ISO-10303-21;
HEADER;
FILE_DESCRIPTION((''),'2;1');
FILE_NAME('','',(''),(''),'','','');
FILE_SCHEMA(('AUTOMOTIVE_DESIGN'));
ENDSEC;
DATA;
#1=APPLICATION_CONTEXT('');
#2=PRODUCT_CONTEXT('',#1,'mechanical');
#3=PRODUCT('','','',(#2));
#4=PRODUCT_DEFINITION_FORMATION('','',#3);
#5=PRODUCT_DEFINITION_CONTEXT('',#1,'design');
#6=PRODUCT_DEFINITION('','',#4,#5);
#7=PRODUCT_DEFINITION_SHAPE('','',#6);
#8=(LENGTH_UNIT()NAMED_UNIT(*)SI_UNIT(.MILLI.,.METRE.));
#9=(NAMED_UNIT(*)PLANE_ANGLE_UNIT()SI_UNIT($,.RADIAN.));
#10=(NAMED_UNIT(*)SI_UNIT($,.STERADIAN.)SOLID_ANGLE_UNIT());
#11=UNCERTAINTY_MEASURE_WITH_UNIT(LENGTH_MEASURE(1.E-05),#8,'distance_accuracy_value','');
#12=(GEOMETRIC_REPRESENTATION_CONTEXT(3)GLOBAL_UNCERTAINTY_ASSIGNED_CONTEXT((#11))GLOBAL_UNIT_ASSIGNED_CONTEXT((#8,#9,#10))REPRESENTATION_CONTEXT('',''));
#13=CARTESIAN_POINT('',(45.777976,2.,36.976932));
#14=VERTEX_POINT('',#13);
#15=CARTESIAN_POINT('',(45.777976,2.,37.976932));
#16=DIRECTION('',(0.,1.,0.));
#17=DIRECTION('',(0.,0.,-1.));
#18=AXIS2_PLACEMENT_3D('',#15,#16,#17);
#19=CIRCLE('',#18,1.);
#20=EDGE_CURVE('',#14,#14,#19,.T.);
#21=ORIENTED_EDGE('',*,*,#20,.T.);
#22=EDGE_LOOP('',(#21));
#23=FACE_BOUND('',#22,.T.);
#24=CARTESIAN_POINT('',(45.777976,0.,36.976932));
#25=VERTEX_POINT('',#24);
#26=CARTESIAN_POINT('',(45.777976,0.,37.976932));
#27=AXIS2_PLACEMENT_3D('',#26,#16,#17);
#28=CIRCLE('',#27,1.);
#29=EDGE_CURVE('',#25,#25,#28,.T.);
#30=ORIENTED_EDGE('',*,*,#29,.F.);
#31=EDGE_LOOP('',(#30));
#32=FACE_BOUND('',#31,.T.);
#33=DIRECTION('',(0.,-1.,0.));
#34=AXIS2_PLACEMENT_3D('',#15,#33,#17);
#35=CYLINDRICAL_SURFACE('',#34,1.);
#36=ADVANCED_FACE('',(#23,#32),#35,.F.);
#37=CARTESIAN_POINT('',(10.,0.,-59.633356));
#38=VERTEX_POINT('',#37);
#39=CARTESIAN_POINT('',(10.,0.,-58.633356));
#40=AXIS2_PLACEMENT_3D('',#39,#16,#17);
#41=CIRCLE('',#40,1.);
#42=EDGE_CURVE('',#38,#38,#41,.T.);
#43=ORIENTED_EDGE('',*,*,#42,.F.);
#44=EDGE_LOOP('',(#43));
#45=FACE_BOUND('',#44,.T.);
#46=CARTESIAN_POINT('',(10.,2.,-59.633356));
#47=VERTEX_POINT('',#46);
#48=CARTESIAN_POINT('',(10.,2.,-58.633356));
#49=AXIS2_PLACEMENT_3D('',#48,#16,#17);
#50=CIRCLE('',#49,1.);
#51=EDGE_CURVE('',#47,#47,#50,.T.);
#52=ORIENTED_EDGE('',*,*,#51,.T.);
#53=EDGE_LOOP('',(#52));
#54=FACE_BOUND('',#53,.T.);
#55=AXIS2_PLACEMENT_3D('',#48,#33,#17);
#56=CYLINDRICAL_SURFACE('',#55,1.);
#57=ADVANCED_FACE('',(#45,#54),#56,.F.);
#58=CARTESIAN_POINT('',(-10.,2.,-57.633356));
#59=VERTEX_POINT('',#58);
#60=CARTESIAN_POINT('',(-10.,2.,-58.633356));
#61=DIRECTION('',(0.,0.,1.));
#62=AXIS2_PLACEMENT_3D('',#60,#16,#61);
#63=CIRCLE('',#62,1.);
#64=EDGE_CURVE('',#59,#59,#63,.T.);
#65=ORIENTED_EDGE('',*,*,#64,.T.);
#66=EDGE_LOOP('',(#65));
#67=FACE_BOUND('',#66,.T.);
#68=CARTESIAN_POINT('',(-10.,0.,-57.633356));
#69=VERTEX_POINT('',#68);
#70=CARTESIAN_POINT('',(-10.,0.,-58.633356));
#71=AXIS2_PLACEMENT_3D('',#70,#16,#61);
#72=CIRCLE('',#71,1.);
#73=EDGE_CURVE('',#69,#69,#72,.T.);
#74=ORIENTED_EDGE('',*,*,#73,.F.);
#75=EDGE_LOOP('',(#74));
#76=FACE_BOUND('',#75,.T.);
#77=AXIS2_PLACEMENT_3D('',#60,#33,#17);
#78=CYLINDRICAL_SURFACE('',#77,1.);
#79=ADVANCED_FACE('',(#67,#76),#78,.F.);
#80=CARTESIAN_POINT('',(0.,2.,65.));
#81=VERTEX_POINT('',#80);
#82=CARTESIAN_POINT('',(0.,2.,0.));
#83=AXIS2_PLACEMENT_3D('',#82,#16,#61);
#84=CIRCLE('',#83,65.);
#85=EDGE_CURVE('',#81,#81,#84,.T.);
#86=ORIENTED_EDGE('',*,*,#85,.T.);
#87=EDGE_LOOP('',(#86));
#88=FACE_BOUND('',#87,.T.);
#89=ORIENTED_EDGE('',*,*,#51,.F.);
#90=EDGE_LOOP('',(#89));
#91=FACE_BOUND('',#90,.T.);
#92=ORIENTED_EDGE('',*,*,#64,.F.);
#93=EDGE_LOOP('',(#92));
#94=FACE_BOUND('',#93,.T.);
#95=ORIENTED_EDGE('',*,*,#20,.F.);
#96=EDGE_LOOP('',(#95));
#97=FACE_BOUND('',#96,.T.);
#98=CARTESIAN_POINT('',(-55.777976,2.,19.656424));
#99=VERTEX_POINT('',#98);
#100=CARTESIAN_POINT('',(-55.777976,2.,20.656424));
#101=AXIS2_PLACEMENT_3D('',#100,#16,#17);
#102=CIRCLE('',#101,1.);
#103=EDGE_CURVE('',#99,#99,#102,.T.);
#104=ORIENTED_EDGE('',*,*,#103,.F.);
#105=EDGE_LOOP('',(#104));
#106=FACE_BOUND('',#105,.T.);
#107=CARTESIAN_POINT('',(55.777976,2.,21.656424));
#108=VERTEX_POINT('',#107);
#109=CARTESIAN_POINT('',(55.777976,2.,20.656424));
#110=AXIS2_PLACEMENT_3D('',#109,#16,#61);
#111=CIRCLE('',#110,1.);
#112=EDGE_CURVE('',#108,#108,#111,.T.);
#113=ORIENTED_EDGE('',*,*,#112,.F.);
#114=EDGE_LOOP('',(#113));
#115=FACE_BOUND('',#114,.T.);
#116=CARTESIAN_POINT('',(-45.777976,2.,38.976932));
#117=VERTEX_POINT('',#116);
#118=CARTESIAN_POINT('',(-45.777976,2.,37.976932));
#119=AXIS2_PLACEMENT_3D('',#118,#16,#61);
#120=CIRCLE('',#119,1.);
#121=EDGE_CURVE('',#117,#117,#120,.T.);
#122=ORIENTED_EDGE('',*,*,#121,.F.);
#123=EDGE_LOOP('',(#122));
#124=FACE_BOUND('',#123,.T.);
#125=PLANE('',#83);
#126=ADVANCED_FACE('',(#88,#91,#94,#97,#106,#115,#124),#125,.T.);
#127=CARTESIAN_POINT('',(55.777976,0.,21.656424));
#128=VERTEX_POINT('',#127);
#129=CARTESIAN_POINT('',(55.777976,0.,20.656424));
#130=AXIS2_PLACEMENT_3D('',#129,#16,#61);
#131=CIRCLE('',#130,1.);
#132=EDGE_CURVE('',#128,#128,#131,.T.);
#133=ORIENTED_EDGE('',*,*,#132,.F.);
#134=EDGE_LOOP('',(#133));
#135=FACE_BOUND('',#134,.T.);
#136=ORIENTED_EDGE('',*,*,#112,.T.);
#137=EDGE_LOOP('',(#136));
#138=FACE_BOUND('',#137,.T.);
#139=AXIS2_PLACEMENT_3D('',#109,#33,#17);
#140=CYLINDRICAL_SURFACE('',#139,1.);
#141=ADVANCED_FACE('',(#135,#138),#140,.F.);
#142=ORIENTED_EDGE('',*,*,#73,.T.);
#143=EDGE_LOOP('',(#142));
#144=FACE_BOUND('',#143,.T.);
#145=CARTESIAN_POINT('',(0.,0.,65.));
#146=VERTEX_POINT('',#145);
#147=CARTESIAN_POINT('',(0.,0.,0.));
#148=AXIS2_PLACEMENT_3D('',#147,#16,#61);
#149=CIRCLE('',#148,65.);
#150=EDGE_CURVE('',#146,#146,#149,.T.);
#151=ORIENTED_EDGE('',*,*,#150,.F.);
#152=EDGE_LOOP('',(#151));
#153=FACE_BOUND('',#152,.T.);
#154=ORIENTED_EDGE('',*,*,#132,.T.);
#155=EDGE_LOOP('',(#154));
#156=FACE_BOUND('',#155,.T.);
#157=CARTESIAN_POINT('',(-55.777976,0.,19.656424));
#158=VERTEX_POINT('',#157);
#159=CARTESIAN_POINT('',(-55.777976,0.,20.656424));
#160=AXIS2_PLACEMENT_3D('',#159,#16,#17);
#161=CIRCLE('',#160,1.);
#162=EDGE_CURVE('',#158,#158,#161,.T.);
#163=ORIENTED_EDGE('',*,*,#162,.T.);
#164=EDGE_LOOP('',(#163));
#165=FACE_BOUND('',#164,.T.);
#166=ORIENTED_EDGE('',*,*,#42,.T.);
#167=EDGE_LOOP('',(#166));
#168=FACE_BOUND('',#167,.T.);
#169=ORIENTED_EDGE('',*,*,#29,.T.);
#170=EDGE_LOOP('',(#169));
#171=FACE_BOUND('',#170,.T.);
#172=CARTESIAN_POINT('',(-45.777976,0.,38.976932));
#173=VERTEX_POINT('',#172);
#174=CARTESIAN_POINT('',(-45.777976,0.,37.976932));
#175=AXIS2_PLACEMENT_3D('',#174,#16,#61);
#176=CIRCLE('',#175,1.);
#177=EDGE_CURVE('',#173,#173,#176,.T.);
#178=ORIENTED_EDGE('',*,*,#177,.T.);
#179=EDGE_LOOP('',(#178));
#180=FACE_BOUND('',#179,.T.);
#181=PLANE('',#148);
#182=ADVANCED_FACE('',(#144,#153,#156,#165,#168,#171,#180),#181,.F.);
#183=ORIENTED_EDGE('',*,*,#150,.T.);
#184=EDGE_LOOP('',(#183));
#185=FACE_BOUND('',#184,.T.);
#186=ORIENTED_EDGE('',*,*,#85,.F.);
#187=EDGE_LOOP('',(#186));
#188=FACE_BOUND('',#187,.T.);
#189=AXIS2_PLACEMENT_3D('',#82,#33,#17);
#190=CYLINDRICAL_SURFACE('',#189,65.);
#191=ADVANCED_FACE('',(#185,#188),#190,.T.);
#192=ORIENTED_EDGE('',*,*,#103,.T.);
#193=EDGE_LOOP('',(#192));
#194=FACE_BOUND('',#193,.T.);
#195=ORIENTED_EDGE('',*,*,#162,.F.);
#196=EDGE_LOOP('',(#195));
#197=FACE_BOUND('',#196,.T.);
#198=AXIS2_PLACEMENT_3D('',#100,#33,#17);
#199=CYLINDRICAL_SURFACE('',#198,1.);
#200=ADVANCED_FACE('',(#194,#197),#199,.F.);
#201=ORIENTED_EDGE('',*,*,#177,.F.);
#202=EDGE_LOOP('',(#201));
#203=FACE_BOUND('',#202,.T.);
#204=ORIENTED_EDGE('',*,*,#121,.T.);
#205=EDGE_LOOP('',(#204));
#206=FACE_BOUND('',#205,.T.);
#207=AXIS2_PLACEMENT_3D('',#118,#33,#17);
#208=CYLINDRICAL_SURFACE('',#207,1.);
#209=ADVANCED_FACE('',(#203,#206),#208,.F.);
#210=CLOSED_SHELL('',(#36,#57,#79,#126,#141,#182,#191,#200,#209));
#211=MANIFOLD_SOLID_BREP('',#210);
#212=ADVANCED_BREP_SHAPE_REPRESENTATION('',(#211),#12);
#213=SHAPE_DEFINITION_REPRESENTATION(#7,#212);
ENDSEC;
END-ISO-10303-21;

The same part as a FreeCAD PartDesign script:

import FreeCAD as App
import Part
import Sketcher

V = App.Vector
Q = App.Units.Quantity

doc = App.newDocument("Part")
params = doc.addObject("Spreadsheet::Sheet", "Params")
for row, (alias, value) in enumerate([
    ("sketch1_diameter", "130 mm"),
    ("sketch1_diameter2", "2 mm"),
    ("pad1_length", "2 mm"),
], start=1):
    params.set(f"A{row}", alias)
    params.set(f"B{row}", "=" + value)
    params.setAlias(f"B{row}", alias)

body = doc.addObject("PartDesign::Body", "Body")

sketch1 = body.newObject("Sketcher::SketchObject", "Sketch")
sketch1.AttachmentSupport = (doc.getObject("XZ_Plane"), [""])
sketch1.MapMode = "FlatFace"
sketch1.addGeometry(Part.Circle(V(0, 0, 0), V(0, 0, 1), 65), False)
sketch1.addGeometry(Part.Circle(V(-45.777976, 37.976932, 0), V(0, 0, 1), 1), False)
sketch1.addGeometry(Part.Circle(V(-55.777976, 20.656424, 0), V(0, 0, 1), 1), False)
sketch1.addGeometry(Part.Circle(V(45.777976, 37.976932, 0), V(0, 0, 1), 1), False)
sketch1.addGeometry(Part.Circle(V(55.777976, 20.656424, 0), V(0, 0, 1), 1), False)
sketch1.addGeometry(Part.Circle(V(-10, -58.633356, 0), V(0, 0, 1), 1), False)
sketch1.addGeometry(Part.Circle(V(10, -58.633356, 0), V(0, 0, 1), 1), False)
sketch1.addConstraint(Sketcher.Constraint("Coincident", 0, 3, -1, 1))
sketch1.addConstraint(Sketcher.Constraint("Equal", 1, 2))
sketch1.addConstraint(Sketcher.Constraint("Equal", 2, 3))
sketch1.addConstraint(Sketcher.Constraint("Equal", 3, 4))
sketch1.addConstraint(Sketcher.Constraint("Equal", 4, 5))
sketch1.addConstraint(Sketcher.Constraint("Equal", 5, 6))
sketch1.addConstraint(Sketcher.Constraint("Symmetric", 1, 3, 3, 3, -2))
sketch1.addConstraint(Sketcher.Constraint("Symmetric", 2, 3, 4, 3, -2))
sketch1.addConstraint(Sketcher.Constraint("Symmetric", 5, 3, 6, 3, -2))
sketch1.addConstraint(Sketcher.Constraint("Diameter", 0, Q("130 mm")))
sketch1.addConstraint(Sketcher.Constraint("Diameter", 1, Q("2 mm")))
sketch1.addConstraint(Sketcher.Constraint("DistanceX", 5, 3, -1, 1, Q("10 mm")))
sketch1.addConstraint(Sketcher.Constraint("DistanceX", 2, 3, 1, 3, Q("10 mm")))
sketch1.addConstraint(Sketcher.Constraint("DistanceY", -1, 1, 1, 3, Q("37.976932 mm")))
sketch1.addConstraint(Sketcher.Constraint("DistanceY", 2, 3, 1, 3, Q("17.320508 mm")))
sketch1.addConstraint(Sketcher.Constraint("DistanceX", 1, 3, 3, 3, Q("91.555951 mm")))
sketch1.addConstraint(Sketcher.Constraint("DistanceY", 5, 3, 2, 3, Q("79.28978 mm")))
sketch1.setExpression("Constraints[9]", "Params.sketch1_diameter")
sketch1.setExpression("Constraints[10]", "Params.sketch1_diameter2")
pad1 = body.newObject("PartDesign::Pad", "Pad")
pad1.Profile = sketch1
pad1.setExpression("Length", "Params.pad1_length")
pad1.Reversed = True

doc.recompute()
